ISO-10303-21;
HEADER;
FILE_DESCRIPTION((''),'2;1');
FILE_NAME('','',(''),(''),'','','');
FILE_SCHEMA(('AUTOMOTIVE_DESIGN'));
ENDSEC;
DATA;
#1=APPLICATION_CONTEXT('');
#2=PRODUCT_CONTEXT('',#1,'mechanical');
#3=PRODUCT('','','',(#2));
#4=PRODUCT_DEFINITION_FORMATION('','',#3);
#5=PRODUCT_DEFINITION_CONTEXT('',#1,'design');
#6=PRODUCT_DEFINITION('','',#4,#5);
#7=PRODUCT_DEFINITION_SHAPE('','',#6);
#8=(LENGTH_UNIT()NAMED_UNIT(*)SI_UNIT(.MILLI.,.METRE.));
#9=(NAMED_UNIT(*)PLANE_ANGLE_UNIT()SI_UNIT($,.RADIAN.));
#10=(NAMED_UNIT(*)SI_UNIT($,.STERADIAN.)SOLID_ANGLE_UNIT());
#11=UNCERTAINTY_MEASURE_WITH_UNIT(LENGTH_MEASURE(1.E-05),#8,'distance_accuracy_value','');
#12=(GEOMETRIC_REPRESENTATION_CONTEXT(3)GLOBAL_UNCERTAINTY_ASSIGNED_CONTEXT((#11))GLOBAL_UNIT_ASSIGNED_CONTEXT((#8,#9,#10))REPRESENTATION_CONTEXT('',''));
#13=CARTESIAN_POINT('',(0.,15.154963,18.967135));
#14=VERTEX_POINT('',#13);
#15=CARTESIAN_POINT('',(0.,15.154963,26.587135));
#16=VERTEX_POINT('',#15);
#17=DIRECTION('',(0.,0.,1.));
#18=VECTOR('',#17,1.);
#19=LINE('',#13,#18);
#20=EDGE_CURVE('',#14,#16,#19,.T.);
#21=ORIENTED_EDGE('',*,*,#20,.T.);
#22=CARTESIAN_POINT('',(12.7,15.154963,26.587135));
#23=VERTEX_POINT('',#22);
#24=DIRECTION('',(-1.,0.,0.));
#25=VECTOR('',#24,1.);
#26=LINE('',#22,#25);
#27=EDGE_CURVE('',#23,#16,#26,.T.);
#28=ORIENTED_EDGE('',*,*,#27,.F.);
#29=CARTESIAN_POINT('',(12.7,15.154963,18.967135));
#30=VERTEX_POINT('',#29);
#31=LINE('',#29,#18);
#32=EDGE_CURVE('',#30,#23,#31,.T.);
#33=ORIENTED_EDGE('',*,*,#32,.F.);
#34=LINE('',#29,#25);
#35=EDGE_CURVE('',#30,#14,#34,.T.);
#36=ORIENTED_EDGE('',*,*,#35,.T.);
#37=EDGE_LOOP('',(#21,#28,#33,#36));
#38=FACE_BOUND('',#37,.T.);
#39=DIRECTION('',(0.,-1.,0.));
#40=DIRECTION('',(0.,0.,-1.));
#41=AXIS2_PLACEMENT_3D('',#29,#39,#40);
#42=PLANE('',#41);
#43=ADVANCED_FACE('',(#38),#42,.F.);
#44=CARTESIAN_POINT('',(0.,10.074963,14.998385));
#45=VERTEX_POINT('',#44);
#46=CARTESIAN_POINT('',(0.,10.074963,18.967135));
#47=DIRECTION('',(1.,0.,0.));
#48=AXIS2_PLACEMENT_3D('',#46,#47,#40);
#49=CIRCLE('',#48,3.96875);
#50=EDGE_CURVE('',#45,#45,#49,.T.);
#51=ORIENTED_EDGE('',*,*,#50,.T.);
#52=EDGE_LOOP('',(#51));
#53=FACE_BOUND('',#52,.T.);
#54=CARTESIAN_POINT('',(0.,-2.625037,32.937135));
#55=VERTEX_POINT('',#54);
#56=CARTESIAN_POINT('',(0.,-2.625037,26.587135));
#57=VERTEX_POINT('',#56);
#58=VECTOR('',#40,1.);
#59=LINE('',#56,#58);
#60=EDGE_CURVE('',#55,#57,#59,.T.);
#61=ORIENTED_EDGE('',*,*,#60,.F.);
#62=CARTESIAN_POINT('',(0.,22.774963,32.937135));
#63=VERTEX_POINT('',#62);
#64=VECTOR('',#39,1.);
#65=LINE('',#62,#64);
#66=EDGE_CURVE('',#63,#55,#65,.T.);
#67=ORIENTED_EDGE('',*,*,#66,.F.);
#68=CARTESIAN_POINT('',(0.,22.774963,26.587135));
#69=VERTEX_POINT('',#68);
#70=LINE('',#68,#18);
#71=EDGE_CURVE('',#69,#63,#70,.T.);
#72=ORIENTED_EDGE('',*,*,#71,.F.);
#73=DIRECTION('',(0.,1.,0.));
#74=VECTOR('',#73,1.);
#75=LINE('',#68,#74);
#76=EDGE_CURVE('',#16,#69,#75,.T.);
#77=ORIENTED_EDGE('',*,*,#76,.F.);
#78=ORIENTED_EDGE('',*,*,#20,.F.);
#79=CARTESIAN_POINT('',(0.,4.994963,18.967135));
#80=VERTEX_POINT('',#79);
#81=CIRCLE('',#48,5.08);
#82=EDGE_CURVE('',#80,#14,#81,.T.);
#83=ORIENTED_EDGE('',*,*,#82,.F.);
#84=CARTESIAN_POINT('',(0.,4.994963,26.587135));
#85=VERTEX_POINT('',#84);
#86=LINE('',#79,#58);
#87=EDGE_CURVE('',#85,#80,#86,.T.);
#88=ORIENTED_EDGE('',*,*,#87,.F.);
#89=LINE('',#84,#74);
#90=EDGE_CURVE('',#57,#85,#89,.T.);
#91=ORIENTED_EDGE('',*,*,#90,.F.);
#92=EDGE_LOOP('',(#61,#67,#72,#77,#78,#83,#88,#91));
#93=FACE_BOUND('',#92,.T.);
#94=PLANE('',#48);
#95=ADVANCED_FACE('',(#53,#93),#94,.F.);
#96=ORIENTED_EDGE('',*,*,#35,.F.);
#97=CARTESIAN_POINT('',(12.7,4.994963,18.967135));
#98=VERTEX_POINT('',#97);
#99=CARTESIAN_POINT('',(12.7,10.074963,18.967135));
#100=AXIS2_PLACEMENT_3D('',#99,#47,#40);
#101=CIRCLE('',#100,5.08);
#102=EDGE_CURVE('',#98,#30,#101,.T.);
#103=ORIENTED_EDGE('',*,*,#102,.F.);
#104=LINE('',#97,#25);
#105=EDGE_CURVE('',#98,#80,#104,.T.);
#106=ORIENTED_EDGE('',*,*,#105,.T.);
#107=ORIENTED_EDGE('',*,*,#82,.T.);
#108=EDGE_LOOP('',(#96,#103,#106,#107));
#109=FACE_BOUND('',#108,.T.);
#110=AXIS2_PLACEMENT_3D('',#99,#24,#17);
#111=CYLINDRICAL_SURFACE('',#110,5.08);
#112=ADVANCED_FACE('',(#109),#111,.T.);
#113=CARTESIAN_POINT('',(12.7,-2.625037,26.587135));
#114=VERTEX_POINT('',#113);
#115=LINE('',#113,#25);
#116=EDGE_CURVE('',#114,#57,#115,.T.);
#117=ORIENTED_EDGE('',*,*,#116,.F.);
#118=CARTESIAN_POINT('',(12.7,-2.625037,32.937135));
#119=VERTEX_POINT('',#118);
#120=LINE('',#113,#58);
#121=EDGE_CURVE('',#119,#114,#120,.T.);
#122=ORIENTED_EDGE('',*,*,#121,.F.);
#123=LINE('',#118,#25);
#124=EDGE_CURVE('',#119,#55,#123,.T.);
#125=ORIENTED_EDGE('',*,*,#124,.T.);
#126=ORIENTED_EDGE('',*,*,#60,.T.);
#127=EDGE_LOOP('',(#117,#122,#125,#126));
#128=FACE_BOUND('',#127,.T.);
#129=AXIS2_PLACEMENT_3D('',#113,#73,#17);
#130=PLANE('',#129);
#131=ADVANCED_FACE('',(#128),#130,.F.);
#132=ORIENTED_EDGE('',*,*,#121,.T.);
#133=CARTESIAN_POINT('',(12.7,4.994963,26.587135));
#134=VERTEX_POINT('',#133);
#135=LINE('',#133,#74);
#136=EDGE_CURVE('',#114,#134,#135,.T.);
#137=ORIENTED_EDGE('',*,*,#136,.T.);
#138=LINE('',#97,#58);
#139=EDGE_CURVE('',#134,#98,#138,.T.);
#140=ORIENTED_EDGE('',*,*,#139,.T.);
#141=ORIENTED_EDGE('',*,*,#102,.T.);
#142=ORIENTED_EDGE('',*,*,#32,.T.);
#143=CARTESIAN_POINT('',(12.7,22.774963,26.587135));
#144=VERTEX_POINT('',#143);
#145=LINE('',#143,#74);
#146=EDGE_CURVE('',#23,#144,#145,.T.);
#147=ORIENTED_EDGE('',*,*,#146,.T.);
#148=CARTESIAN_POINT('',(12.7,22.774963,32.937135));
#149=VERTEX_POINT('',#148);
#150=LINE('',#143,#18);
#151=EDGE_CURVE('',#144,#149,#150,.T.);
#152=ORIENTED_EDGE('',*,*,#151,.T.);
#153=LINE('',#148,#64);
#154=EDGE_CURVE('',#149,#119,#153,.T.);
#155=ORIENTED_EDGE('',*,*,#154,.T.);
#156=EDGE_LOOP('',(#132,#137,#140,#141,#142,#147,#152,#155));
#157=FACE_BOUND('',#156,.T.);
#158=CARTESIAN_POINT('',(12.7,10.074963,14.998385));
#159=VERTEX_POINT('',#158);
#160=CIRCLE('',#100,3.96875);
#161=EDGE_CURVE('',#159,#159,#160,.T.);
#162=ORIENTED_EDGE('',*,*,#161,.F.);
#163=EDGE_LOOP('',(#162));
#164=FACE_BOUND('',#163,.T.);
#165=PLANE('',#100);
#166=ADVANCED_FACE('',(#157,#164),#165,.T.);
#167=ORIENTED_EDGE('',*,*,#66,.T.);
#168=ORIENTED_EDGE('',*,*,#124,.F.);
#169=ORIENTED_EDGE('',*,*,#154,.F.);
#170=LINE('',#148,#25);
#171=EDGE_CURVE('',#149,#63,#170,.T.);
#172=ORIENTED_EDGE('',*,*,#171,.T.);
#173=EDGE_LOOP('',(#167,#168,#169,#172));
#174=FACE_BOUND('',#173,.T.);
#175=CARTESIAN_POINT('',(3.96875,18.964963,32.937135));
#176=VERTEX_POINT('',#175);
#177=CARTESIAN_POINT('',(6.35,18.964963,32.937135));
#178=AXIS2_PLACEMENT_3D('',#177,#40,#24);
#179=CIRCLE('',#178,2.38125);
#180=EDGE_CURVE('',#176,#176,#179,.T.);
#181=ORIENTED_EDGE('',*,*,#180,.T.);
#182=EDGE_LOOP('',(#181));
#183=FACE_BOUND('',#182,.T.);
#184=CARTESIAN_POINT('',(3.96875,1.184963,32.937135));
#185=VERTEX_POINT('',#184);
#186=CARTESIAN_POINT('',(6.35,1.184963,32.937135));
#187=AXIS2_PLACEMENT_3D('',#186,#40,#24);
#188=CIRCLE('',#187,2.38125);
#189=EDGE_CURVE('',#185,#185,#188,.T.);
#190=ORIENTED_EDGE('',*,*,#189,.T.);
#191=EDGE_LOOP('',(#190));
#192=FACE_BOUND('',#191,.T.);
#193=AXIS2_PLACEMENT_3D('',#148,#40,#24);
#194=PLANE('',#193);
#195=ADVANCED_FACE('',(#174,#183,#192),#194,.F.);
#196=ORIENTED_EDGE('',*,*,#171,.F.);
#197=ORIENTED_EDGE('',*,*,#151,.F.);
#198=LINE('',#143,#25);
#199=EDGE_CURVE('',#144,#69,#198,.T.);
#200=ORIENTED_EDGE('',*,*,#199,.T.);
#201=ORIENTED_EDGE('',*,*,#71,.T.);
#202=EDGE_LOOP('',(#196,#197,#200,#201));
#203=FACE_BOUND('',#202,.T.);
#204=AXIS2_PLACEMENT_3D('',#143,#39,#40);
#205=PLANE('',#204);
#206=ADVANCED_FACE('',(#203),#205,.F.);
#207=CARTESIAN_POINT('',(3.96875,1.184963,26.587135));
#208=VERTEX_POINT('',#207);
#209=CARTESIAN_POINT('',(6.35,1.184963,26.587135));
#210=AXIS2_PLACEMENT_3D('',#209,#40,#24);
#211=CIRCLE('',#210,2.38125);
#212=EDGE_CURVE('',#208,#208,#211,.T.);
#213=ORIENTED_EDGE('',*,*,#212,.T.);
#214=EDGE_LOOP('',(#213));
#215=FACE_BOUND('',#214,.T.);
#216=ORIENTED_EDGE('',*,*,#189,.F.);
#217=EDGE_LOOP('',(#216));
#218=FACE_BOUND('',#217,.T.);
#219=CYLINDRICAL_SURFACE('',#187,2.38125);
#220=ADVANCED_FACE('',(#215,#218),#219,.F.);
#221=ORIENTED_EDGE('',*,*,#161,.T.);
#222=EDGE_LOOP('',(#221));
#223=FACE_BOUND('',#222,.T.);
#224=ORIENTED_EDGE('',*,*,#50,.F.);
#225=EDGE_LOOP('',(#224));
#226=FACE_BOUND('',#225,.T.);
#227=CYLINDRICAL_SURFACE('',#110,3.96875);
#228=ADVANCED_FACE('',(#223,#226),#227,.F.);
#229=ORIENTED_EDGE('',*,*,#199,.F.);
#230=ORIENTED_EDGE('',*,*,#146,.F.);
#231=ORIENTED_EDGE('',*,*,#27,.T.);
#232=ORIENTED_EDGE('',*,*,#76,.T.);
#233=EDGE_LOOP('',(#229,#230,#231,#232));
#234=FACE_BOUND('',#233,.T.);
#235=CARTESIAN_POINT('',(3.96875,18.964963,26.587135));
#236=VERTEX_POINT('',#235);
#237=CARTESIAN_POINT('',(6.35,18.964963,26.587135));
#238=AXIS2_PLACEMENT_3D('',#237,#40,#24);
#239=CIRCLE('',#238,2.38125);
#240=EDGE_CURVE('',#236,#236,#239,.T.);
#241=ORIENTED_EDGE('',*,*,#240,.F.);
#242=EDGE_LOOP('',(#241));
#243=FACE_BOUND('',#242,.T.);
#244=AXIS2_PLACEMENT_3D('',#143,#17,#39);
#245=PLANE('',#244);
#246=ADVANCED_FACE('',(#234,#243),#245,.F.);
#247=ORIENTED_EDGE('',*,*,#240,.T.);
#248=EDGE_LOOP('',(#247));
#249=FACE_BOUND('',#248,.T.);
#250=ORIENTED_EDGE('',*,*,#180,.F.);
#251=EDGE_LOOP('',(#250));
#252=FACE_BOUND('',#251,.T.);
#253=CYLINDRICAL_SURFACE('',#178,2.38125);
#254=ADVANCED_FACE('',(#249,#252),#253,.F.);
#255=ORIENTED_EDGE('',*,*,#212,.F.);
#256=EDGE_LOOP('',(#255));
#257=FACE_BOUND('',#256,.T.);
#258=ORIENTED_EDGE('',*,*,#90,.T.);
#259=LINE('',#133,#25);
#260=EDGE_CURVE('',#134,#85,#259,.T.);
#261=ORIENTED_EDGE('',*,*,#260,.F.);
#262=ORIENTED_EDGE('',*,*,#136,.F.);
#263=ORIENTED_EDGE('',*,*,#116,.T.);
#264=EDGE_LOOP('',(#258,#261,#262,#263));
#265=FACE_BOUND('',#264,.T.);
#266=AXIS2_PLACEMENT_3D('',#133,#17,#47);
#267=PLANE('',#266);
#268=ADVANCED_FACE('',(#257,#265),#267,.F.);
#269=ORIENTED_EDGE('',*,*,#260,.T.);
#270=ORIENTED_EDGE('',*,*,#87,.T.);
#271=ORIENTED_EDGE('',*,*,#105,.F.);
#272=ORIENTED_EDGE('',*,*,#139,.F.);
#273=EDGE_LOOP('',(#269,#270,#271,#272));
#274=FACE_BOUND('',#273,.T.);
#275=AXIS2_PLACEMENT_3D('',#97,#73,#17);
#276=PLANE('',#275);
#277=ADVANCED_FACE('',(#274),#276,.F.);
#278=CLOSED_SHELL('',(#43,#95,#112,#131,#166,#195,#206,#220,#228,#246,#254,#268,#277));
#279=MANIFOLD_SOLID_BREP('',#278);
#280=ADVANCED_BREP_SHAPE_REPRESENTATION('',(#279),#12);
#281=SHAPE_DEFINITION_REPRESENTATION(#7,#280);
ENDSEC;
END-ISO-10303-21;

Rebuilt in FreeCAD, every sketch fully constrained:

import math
import FreeCAD as App
import Part
import Sketcher

V = App.Vector
Q = App.Units.Quantity

doc = App.newDocument("Part")
params = doc.addObject("Spreadsheet::Sheet", "Params")
for row, (alias, value) in enumerate([
    ("sketch1_radius", "0.2 in"),
    ("sketch1_width", "1 in"),
    ("sketch1_diameter", "0.3125 in"),
    ("sketch1_height", "0.25 in"),
    ("pad1_length", "0.5 in"),
    ("sketch2_diameter", "0.1875 in"),
], start=1):
    params.set(f"A{row}", alias)
    params.set(f"B{row}", "=" + value)
    params.setAlias(f"B{row}", alias)

body = doc.addObject("PartDesign::Body", "Body")

# Sketch on YZ plane
sketch1 = doc.addObject("Sketcher::SketchObject", "Sketch")
body.addObject(sketch1)
sketch1.AttachmentSupport = (doc.YZ_Plane, [""])
sketch1.MapMode = "FlatFace"
sketch1.addGeometry(Part.LineSegment(V(-2.6, 26.6, 0), V(5, 26.6, 0)), False)
sketch1.addGeometry(Part.LineSegment(V(5, 26.6, 0), V(5, 19, 0)), False)
sketch1.addGeometry(Part.ArcOfCircle(Part.Circle(V(10.1, 19, 0), V(0, 0, 1), 5.1), math.radians(180), math.radians(360)), False)
sketch1.addGeometry(Part.LineSegment(V(15.2, 19, 0), V(15.2, 26.6, 0)), False)
sketch1.addGeometry(Part.LineSegment(V(15.2, 26.6, 0), V(22.8, 26.6, 0)), False)
sketch1.addGeometry(Part.LineSegment(V(22.8, 26.6, 0), V(22.8, 32.9, 0)), False)
sketch1.addGeometry(Part.LineSegment(V(22.8, 32.9, 0), V(-2.6, 32.9, 0)), False)
sketch1.addGeometry(Part.LineSegment(V(-2.6, 32.9, 0), V(-2.6, 26.6, 0)), False)
sketch1.addGeometry(Part.Circle(V(10.1, 19, 0), V(0, 0, 1), 4), False)
sketch1.addConstraint(Sketcher.Constraint("Coincident", 0, 2, 1, 1))
sketch1.addConstraint(Sketcher.Constraint("Tangent", 1, 2, 2, 1))
sketch1.addConstraint(Sketcher.Constraint("Tangent", 2, 2, 3, 1))
sketch1.addConstraint(Sketcher.Constraint("Coincident", 3, 2, 4, 1))
sketch1.addConstraint(Sketcher.Constraint("Coincident", 4, 2, 5, 1))
sketch1.addConstraint(Sketcher.Constraint("Coincident", 5, 2, 6, 1))
sketch1.addConstraint(Sketcher.Constraint("Coincident", 6, 2, 7, 1))
sketch1.addConstraint(Sketcher.Constraint("Coincident", 7, 2, 0, 1))
sketch1.addConstraint(Sketcher.Constraint("Horizontal", 0))
sketch1.addConstraint(Sketcher.Constraint("Vertical", 1))
sketch1.addConstraint(Sketcher.Constraint("Vertical", 3))
sketch1.addConstraint(Sketcher.Constraint("Horizontal", 4))
sketch1.addConstraint(Sketcher.Constraint("Vertical", 5))
sketch1.addConstraint(Sketcher.Constraint("Horizontal", 6))
sketch1.addConstraint(Sketcher.Constraint("Vertical", 7))
sketch1.addConstraint(Sketcher.Constraint("Coincident", 8, 3, 2, 3))
sketch1.addConstraint(Sketcher.Constraint("Horizontal", 0, 2, 3, 2))
sketch1.addConstraint(Sketcher.Constraint("Equal", 0, 4))
sketch1.addConstraint(Sketcher.Constraint("Equal", 4, 1))
sketch1.addConstraint(Sketcher.Constraint("Radius", 2, Q("0.2 in")))
sketch1.addConstraint(Sketcher.Constraint("DistanceX", 6, 2, 6, 1, Q("1 in")))
sketch1.addConstraint(Sketcher.Constraint("Diameter", 8, Q("0.3125 in")))
sketch1.addConstraint(Sketcher.Constraint("DistanceY", 5, 1, 5, 2, Q("0.25 in")))
sketch1.addConstraint(Sketcher.Constraint("DistanceX", -1, 1, 2, 3, 10.074963))
sketch1.addConstraint(Sketcher.Constraint("DistanceY", -1, 1, 2, 3, 18.967135))
sketch1.setExpression("Constraints[19]", "Params.sketch1_radius")
sketch1.setExpression("Constraints[20]", "Params.sketch1_width")
sketch1.setExpression("Constraints[21]", "Params.sketch1_diameter")
sketch1.setExpression("Constraints[22]", "Params.sketch1_height")
pad1 = doc.addObject("PartDesign::Pad", "Pad")
body.addObject(pad1)
pad1.Profile = sketch1
pad1.setExpression("Length", "Params.pad1_length")

# Sketch on XY plane
sketch2 = doc.addObject("Sketcher::SketchObject", "Sketch001")
body.addObject(sketch2)
sketch2.AttachmentSupport = (doc.XY_Plane, [""])
sketch2.MapMode = "FlatFace"
sketch2.AttachmentOffset = App.Placement(V(0, 0, 26.587135), App.Rotation())
sketch2.addGeometry(Part.Circle(V(6.3, 19, 0), V(0, 0, 1), 2.4), False)
sketch2.addGeometry(Part.Circle(V(6.3, 1.2, 0), V(0, 0, 1), 2.4), False)
sketch2.addConstraint(Sketcher.Constraint("Equal", 0, 1))
sketch2.addConstraint(Sketcher.Constraint("Vertical", 0, 3, 1, 3))
sketch2.addConstraint(Sketcher.Constraint("Diameter", 0, Q("0.1875 in")))
sketch2.addConstraint(Sketcher.Constraint("DistanceY", 1, 3, 0, 3, Q("0.7 in")))
sketch2.addConstraint(Sketcher.Constraint("DistanceX", -1, 1, 0, 3, Q("0.25 in")))
sketch2.addConstraint(Sketcher.Constraint("DistanceY", -1, 1, 0, 3, 18.964963))
sketch2.setExpression("Constraints[2]", "Params.sketch2_diameter")
pocket1 = doc.addObject("PartDesign::Pocket", "Pocket")
body.addObject(pocket1)
pocket1.Profile = sketch2
pocket1.Type = "ThroughAll"
pocket1.Reversed = True

doc.recompute()
